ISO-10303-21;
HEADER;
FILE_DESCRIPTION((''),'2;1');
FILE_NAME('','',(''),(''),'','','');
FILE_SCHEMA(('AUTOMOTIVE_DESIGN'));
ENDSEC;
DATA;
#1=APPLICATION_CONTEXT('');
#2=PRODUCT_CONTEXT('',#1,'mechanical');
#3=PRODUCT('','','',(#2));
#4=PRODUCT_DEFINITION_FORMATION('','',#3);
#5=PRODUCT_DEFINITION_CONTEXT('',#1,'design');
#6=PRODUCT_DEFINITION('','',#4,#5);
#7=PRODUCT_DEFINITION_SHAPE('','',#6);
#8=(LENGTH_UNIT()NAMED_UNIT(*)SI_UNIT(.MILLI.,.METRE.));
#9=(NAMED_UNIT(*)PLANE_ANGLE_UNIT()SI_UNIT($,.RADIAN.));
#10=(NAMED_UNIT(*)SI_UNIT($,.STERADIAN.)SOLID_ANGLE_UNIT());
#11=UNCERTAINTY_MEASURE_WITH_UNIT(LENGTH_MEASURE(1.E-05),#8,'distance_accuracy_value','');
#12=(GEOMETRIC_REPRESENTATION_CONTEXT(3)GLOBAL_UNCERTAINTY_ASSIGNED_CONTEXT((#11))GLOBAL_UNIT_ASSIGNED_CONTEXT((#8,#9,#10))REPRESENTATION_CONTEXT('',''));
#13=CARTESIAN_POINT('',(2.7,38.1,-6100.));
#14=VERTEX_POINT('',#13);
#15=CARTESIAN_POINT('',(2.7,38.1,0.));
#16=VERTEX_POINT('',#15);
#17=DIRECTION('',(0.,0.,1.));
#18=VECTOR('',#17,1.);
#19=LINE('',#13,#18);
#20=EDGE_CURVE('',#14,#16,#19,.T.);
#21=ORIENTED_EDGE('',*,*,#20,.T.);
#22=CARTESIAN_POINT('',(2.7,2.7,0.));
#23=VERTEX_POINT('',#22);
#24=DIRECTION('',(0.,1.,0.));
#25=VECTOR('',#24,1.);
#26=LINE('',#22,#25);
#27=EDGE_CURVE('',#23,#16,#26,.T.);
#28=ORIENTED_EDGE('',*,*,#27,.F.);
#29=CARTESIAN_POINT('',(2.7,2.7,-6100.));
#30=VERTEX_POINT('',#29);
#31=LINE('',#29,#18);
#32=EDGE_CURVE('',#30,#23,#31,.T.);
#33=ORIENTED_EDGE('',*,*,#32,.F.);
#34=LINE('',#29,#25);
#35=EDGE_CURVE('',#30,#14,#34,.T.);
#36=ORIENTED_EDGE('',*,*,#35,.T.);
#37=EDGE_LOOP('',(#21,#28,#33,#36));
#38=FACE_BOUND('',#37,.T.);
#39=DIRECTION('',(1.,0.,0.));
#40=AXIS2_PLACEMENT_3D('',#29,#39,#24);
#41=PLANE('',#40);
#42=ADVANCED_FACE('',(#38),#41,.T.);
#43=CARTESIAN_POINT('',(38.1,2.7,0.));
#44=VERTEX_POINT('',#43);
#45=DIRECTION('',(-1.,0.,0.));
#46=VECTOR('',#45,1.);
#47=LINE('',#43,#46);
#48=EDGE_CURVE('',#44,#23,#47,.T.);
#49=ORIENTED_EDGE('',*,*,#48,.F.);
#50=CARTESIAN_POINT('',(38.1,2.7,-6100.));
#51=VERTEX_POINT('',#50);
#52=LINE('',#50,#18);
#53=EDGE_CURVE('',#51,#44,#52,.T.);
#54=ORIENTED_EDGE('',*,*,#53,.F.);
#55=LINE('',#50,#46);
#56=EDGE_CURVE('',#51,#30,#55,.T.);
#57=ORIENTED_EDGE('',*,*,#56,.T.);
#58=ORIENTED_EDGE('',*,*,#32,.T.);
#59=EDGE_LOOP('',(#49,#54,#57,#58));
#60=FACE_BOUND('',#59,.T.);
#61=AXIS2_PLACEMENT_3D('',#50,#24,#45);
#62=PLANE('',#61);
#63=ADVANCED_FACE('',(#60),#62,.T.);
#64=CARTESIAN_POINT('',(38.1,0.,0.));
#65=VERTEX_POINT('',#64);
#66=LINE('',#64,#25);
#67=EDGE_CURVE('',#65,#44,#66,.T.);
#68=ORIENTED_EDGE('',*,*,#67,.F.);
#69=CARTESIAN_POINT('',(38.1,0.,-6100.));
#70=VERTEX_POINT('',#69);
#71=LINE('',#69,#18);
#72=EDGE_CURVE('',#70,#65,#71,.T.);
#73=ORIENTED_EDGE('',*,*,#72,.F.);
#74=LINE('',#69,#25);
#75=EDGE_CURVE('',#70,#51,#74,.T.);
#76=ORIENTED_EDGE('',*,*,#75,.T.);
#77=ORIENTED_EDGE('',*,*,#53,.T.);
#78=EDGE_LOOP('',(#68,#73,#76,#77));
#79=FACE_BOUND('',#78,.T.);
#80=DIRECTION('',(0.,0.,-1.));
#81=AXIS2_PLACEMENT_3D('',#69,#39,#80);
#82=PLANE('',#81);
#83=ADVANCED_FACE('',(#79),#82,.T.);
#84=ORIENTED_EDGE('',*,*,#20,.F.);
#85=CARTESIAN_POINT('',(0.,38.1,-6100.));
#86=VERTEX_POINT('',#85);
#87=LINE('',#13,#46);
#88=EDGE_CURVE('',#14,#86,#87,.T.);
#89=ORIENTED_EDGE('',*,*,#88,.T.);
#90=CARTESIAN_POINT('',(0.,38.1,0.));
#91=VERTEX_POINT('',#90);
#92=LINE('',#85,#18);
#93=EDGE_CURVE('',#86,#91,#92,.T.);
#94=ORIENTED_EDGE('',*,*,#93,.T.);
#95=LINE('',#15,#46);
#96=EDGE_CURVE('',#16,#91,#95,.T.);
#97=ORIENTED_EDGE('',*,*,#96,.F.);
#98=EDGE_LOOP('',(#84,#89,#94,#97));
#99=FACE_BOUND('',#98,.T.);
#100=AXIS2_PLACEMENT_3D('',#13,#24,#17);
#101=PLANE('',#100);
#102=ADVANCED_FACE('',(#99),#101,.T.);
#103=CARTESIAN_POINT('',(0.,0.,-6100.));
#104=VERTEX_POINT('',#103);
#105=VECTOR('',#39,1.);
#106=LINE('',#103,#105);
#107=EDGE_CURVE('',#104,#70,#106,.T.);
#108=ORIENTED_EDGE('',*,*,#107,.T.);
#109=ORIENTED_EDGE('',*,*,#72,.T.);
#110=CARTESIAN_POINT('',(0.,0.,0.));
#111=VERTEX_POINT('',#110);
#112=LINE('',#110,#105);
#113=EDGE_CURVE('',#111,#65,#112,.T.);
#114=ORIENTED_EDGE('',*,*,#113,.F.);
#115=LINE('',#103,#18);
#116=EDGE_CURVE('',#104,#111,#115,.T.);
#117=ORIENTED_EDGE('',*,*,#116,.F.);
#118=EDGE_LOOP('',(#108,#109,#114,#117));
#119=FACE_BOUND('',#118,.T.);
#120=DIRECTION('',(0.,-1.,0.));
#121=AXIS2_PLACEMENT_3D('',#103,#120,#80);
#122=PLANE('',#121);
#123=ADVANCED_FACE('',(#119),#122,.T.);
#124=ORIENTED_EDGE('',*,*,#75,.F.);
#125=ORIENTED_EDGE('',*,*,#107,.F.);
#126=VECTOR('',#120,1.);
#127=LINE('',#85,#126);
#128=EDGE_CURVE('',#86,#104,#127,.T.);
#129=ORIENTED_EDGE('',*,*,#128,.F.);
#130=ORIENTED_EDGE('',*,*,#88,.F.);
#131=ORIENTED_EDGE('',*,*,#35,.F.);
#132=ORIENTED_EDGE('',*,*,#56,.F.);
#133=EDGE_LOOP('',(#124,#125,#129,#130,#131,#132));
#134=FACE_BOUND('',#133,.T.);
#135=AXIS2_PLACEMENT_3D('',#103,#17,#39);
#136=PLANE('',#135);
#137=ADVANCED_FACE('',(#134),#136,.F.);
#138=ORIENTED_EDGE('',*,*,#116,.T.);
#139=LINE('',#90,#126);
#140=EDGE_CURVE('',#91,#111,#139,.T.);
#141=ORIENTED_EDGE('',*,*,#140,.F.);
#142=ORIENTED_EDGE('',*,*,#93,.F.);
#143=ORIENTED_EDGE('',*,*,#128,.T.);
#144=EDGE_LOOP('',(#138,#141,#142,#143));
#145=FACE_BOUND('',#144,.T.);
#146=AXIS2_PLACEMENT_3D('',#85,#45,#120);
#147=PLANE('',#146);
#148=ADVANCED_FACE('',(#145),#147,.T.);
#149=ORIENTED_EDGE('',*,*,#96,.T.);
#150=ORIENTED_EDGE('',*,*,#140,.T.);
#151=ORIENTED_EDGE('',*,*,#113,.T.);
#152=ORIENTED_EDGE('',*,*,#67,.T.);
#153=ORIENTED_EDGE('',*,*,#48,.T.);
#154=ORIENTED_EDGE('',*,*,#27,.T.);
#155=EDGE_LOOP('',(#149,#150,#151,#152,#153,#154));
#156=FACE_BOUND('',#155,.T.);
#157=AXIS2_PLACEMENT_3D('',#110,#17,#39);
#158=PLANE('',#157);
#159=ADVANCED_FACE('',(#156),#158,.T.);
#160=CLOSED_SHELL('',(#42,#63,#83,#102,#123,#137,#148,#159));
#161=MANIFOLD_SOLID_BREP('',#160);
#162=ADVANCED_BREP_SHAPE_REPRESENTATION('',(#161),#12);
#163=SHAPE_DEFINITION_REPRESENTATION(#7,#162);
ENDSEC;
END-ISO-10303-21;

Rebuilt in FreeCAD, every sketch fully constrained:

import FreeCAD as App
import Part
import Sketcher
Q = App.Units.Quantity


def add_polygon(sketch, points):
    """Adds a closed chain of lines whose ends are joined by coincident constraints."""
    first, n = sketch.GeometryCount, len(points)
    for a, b in zip(points, points[1:] + points[:1]):
        sketch.addGeometry(Part.LineSegment(App.Vector(*a, 0), App.Vector(*b, 0)), False)
    for i in range(n):
        sketch.addConstraint(Sketcher.Constraint("Coincident", first + i, 2, first + (i + 1) % n, 1))

doc = App.newDocument("Part")
body = doc.addObject("PartDesign::Body", "Body")

sketch1 = doc.addObject("Sketcher::SketchObject", "Sketch")
body.addObject(sketch1)
sketch1.AttachmentSupport = (doc.XY_Plane, [""])
sketch1.MapMode = "FlatFace"
add_polygon(sketch1, [(0, 38.1), (0, 0), (38.1, 0), (38.1, 2.7), (2.7, 2.7), (2.7, 38.1)])
sketch1.addConstraint([
    Sketcher.Constraint("Vertical", 0),
    Sketcher.Constraint("Horizontal", 1),
    Sketcher.Constraint("Vertical", 2),
    Sketcher.Constraint("Horizontal", 3),
    Sketcher.Constraint("Vertical", 4),
    Sketcher.Constraint("Horizontal", 5),
    Sketcher.Constraint("Coincident", 0, 2, -1, 1),
    Sketcher.Constraint("Equal", 1, 0),
    Sketcher.Constraint("Equal", 5, 2),
    Sketcher.Constraint("DistanceX", 1, 1, 1, 2, Q("38.1 mm")),
    Sketcher.Constraint("DistanceX", 3, 2, 3, 1, Q("35.4 mm")),
])
pad1 = doc.addObject("PartDesign::Pad", "Pad")
body.addObject(pad1)
pad1.Profile = sketch1
pad1.Length = 6100
pad1.Reversed = True

doc.recompute()
